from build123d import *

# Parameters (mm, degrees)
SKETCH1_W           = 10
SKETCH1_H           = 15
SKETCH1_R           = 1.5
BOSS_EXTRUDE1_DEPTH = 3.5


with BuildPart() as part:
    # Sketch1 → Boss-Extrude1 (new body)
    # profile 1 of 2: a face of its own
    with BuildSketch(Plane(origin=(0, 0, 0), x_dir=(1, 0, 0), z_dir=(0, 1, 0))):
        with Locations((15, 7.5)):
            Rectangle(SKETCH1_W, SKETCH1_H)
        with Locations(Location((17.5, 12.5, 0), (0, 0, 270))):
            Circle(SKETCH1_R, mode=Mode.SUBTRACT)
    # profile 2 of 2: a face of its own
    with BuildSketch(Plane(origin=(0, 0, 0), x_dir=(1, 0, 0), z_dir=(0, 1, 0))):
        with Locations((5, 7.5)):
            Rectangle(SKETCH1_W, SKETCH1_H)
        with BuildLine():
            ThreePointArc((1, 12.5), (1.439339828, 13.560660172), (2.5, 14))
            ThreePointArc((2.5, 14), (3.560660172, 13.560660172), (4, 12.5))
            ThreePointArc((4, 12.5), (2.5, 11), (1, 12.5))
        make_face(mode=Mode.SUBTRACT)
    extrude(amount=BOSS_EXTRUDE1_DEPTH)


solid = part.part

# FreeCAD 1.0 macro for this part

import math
import FreeCAD as App
import Part
import Sketcher
from FreeCAD import Vector
Q = App.Units.Quantity


def add_polygon(sketch, points):
    """Adds a closed chain of lines whose ends are joined by coincident constraints."""
    first, n = sketch.GeometryCount, len(points)
    for a, b in zip(points, points[1:] + points[:1]):
        sketch.addGeometry(Part.LineSegment(App.Vector(*a, 0), App.Vector(*b, 0)), False)
    for i in range(n):
        sketch.addConstraint(Sketcher.Constraint("Coincident", first + i, 2, first + (i + 1) % n, 1))

doc = App.newDocument("Part")
body = doc.addObject("PartDesign::Body", "Body")

sketch1 = body.newObject("Sketcher::SketchObject", "Sketch")
sketch1.AttachmentSupport = (doc.getObject("XZ_Plane"), [""])
sketch1.MapMode = "FlatFace"
add_polygon(sketch1, [(20, 0), (20, -15), (0, -15), (0, 0)])
sketch1.addGeometry(Part.Circle(Vector(17.5, -12.5, 0), Vector(0, 0, 1), 1.5), False)
sketch1.addGeometry(Part.ArcOfCircle(Part.Circle(Vector(2.5, -12.5, 0), Vector(0, 0, 1), 1.5), math.radians(180), math.radians(270)), False)
sketch1.addGeometry(Part.ArcOfCircle(Part.Circle(Vector(2.5, -12.5, 0), Vector(0, 0, 1), 1.5), math.radians(-90), math.radians(0)), False)
sketch1.addGeometry(Part.ArcOfCircle(Part.Circle(Vector(2.5, -12.5, 0), Vector(0, 0, 1), 1.5), math.radians(0), math.radians(180)), False)
sketch1.addConstraint([
    Sketcher.Constraint("Tangent", 5, 2, 6, 1),
    Sketcher.Constraint("Tangent", 6, 2, 7, 1),
    Sketcher.Constraint("Tangent", 7, 2, 5, 1),
    Sketcher.Constraint("Vertical", 0),
    Sketcher.Constraint("Horizontal", 1),
    Sketcher.Constraint("Vertical", 2),
    Sketcher.Constraint("Horizontal", 3),
    Sketcher.Constraint("Coincident", 2, 2, -1, 1),
    Sketcher.Constraint("Equal", 4, 5),
    Sketcher.Constraint("Horizontal", 4, 3, 5, 3),
    Sketcher.Constraint("Horizontal", 7, 3, 6, 2),
    Sketcher.Constraint("Horizontal", 6, 2, 7, 2),
    Sketcher.Constraint("Vertical", 7, 3, 5, 2),
    Sketcher.Constraint("Diameter", 4, Q("3 mm")),
    Sketcher.Constraint("DistanceX", 1, 2, 1, 1, Q("20 mm")),
    Sketcher.Constraint("DistanceY", 0, 2, 0, 1, Q("15 mm")),
    Sketcher.Constraint("DistanceY", 5, 2, -1, 1, Q("14 mm")),
    Sketcher.Constraint("DistanceX", -1, 1, 6, 2, Q("4 mm")),
    Sketcher.Constraint("DistanceX", 5, 3, 4, 3, Q("15 mm")),
])
pad1 = body.newObject("PartDesign::Pad", "Pad")
pad1.Profile = sketch1
pad1.Length = 3.5
pad1.Reversed = True

doc.recompute()
